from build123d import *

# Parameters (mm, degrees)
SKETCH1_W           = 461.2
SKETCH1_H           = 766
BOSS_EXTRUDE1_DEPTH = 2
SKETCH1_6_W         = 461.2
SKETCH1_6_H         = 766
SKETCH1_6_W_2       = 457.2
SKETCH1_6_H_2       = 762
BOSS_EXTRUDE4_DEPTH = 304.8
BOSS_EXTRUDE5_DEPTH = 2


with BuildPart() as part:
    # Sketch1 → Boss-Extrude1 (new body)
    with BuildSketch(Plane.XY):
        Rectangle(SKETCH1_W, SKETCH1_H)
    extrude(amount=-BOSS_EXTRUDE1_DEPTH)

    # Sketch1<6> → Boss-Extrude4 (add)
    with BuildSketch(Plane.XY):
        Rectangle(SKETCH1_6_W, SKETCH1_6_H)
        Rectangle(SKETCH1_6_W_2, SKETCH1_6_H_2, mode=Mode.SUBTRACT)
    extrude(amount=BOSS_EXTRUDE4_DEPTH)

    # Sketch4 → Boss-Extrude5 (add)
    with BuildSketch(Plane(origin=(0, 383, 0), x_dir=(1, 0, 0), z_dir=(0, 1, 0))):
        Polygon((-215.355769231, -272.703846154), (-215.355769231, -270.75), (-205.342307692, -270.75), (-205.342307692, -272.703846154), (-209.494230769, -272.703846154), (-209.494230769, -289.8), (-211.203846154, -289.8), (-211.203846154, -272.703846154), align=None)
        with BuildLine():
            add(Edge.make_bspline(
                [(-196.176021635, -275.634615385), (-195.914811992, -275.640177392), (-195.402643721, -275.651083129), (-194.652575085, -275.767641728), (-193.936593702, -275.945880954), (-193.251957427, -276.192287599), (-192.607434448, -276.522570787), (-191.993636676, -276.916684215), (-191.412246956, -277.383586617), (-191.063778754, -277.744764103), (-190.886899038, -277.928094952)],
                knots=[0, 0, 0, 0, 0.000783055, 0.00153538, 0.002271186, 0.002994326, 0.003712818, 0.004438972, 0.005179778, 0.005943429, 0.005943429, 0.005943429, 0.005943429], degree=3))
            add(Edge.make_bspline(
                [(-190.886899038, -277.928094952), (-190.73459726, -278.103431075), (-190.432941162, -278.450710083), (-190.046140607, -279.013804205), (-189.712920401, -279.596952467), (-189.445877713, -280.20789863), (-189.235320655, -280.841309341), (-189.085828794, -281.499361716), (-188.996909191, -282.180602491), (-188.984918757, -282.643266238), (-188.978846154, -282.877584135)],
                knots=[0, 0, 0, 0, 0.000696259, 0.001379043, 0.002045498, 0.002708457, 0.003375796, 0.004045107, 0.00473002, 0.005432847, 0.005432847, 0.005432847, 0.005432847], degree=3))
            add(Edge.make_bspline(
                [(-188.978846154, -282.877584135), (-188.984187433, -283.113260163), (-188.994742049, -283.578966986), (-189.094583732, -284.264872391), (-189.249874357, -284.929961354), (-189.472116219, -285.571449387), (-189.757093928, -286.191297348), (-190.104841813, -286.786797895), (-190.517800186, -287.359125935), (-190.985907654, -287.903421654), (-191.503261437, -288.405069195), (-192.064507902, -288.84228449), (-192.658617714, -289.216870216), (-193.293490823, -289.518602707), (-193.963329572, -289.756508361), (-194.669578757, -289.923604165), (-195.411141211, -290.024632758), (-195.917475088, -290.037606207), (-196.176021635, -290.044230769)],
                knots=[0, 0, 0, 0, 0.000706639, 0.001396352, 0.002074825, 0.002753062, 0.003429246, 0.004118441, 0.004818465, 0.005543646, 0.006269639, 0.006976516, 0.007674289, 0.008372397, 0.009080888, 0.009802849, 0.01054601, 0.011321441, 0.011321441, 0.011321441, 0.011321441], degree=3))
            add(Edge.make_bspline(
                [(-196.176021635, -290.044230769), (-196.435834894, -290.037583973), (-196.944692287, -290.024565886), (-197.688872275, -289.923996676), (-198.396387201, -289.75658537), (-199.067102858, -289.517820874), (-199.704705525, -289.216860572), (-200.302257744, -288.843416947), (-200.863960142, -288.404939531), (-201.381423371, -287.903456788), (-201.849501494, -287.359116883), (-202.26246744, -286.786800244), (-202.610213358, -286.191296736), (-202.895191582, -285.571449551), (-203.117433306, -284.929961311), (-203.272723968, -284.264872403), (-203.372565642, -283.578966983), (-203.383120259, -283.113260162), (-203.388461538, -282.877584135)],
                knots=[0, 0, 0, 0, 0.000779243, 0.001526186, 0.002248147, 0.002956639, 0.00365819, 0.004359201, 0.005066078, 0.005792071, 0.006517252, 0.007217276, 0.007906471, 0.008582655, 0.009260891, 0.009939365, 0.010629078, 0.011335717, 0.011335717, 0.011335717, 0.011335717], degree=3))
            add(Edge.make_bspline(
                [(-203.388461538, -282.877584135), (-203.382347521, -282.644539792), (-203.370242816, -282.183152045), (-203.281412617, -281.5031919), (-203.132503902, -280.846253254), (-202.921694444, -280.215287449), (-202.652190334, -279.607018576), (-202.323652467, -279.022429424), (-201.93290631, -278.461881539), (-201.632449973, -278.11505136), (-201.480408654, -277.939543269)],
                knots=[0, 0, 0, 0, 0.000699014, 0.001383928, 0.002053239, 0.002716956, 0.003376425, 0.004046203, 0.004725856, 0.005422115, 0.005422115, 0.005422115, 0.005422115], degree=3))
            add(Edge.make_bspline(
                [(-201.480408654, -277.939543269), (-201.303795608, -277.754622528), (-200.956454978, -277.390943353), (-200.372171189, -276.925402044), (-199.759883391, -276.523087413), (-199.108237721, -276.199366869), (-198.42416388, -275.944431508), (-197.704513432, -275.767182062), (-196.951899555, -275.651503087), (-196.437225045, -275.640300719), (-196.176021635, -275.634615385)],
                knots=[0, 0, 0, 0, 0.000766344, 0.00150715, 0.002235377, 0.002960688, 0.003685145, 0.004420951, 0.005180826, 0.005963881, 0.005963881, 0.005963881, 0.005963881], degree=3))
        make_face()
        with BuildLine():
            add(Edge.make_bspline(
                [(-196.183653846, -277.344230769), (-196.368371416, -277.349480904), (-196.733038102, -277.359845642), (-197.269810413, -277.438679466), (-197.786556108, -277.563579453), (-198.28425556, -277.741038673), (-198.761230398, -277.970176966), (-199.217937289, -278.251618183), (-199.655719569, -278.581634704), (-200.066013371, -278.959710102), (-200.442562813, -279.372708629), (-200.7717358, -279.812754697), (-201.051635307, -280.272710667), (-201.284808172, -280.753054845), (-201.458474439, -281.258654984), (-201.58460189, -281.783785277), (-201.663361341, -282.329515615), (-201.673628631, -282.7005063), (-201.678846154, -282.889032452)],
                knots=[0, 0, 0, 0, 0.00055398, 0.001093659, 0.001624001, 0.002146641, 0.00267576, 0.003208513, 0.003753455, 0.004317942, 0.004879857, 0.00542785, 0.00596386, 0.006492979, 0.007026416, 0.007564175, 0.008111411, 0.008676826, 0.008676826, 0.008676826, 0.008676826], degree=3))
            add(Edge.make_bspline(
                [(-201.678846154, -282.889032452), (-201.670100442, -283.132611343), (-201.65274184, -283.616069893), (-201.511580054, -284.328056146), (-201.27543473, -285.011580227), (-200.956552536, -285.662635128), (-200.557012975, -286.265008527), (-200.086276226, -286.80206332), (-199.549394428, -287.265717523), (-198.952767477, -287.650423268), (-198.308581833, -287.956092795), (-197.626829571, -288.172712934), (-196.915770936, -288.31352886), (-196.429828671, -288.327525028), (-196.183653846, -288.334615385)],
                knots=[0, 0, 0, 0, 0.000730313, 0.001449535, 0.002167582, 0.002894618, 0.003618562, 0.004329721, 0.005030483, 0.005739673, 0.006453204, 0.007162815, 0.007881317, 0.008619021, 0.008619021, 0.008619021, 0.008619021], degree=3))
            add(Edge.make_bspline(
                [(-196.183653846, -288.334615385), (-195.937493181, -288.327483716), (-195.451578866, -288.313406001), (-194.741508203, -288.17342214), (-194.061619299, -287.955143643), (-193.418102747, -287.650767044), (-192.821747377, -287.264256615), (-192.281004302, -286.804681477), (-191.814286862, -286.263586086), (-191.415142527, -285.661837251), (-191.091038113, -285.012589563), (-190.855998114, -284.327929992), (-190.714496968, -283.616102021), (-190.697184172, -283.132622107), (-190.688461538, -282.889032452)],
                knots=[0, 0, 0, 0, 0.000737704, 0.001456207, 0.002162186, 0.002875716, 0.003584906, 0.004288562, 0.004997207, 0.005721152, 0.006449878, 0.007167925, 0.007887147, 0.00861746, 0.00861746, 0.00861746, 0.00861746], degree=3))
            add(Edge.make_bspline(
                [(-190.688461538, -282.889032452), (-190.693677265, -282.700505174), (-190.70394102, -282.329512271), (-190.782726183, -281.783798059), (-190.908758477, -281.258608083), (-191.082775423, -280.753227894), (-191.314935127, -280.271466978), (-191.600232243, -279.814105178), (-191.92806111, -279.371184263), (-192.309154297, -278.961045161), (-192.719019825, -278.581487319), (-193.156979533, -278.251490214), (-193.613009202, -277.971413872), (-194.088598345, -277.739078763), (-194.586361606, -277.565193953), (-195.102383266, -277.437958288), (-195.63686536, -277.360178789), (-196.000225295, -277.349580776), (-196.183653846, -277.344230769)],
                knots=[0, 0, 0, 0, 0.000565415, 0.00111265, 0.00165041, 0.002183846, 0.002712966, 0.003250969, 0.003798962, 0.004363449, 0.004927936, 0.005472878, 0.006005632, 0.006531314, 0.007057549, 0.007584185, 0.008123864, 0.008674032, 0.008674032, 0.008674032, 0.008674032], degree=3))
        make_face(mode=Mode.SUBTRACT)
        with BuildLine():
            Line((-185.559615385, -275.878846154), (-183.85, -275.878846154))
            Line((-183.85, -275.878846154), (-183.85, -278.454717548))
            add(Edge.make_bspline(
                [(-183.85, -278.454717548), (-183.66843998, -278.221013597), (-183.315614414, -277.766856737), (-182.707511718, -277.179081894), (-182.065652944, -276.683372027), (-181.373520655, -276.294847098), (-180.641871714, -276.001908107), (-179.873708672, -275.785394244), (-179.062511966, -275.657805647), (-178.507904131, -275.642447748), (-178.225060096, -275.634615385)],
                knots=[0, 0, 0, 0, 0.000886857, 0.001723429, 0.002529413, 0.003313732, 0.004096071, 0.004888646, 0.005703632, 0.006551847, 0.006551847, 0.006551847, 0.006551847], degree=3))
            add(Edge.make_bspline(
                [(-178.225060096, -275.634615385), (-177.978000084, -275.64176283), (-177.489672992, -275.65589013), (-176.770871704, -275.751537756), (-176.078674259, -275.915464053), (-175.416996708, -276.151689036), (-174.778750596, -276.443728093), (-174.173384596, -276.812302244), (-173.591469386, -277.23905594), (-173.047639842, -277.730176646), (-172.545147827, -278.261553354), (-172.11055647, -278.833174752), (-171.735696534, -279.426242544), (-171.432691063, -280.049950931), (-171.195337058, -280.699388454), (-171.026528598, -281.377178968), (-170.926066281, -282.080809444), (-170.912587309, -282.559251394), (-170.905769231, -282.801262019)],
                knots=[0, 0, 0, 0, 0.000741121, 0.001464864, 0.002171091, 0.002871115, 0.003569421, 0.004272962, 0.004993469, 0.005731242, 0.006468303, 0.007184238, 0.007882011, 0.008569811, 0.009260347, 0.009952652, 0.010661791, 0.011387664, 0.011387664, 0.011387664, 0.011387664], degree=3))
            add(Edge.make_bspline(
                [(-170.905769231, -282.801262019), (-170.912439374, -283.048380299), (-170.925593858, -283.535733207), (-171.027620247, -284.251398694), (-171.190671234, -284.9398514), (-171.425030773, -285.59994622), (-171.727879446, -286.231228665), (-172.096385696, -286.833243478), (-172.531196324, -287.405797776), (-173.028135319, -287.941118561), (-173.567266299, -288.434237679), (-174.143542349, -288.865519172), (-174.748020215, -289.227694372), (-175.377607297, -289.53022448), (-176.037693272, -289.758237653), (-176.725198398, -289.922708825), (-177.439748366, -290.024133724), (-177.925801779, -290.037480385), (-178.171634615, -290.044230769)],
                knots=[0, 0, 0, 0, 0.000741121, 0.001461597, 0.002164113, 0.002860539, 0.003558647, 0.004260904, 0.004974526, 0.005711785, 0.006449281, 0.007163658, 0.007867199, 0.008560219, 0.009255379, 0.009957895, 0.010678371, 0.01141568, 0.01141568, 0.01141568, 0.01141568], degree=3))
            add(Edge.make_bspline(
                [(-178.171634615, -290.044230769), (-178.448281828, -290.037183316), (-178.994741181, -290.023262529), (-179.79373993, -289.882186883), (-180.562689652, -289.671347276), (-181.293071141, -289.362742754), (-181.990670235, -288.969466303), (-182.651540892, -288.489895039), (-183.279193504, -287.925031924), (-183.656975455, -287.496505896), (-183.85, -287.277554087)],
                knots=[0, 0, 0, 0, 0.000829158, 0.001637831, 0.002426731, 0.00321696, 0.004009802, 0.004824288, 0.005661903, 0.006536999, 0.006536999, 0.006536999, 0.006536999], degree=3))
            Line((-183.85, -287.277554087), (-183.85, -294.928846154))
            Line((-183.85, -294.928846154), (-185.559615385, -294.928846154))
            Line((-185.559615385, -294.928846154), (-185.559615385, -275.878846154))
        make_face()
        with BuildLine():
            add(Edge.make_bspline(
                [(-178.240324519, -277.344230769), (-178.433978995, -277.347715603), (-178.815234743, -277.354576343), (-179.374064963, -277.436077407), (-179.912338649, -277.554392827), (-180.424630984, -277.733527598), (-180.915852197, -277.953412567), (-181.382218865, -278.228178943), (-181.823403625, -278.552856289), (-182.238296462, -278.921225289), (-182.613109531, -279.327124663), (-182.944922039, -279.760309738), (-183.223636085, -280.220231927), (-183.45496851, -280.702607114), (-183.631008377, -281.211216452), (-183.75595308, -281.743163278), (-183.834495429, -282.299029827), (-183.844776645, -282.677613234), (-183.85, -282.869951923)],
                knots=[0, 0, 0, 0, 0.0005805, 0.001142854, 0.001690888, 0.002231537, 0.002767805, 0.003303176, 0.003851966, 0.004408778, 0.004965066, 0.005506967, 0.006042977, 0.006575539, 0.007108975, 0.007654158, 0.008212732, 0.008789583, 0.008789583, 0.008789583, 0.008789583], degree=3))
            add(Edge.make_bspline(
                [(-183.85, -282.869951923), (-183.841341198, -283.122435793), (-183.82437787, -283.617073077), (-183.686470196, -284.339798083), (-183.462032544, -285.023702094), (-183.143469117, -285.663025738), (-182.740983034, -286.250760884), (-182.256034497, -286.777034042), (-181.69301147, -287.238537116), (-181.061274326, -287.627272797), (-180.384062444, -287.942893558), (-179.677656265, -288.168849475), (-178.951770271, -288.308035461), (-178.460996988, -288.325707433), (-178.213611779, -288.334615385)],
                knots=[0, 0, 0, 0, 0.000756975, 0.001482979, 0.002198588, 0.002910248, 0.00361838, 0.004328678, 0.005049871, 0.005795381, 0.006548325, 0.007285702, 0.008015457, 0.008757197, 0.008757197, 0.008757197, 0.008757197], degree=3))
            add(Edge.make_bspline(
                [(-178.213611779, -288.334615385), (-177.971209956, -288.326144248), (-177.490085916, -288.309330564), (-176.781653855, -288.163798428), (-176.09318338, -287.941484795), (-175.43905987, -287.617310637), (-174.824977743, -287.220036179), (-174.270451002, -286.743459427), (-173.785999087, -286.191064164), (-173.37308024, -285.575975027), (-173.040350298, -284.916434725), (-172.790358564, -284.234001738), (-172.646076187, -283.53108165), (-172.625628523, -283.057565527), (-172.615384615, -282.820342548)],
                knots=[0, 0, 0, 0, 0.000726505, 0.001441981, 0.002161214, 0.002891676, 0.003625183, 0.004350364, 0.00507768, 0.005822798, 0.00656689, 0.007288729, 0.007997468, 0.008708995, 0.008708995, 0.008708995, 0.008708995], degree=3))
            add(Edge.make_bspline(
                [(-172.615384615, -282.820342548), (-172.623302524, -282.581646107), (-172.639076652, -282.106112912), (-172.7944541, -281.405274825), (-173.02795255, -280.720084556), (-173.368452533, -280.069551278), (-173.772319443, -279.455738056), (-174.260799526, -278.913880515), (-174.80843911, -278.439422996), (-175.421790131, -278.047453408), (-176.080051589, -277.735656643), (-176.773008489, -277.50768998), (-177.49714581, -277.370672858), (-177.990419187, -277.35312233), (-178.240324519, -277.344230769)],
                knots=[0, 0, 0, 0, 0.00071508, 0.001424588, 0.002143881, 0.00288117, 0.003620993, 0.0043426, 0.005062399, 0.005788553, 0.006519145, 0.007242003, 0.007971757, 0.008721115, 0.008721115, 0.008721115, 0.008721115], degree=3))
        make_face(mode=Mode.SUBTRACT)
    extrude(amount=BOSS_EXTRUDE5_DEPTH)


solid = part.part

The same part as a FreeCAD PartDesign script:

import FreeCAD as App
import Part
import Sketcher

V = App.Vector
Q = App.Units.Quantity


def add_polygon(sketch, points):
    """Adds a closed chain of lines whose ends are joined by coincident constraints."""
    first, n = sketch.GeometryCount, len(points)
    for a, b in zip(points, points[1:] + points[:1]):
        sketch.addGeometry(Part.LineSegment(App.Vector(*a, 0), App.Vector(*b, 0)), False)
    for i in range(n):
        sketch.addConstraint(Sketcher.Constraint("Coincident", first + i, 2, first + (i + 1) % n, 1))

doc = App.newDocument("Part")
params = doc.addObject("Spreadsheet::Sheet", "Params")
for row, (alias, value) in enumerate([
    ("pad1_length", "2 mm"),
    ("sketch2_width", "18 in"),
    ("sketch2_height", "30 in"),
    ("pad2_length", "12 in"),
    ("sketch3_height", "0.75 in"),
    ("pad3_length", "2 mm"),
], start=1):
    params.set(f"A{row}", alias)
    params.set(f"B{row}", "=" + value)
    params.setAlias(f"B{row}", alias)

body = doc.addObject("PartDesign::Body", "Body")

# Sketch on XY plane
sketch1 = body.newObject("Sketcher::SketchObject", "Sketch")
sketch1.AttachmentSupport = (doc.getObject("XY_Plane"), [""])
sketch1.MapMode = "FlatFace"
add_polygon(sketch1, [(-231, 383), (-231, -383), (231, -383), (231, 383)])  # lines 0-3
sketch1.addConstraint(Sketcher.Constraint("Vertical", 0))
sketch1.addConstraint(Sketcher.Constraint("Horizontal", 1))
sketch1.addConstraint(Sketcher.Constraint("Vertical", 2))
sketch1.addConstraint(Sketcher.Constraint("Horizontal", 3))
sketch1.addConstraint(Sketcher.Constraint("Symmetric", 0, 2, 2, 2, -1, 1))
sketch1.addConstraint(Sketcher.Constraint("DistanceX", 1, 1, 1, 2, Q("461.2 mm")))
sketch1.addConstraint(Sketcher.Constraint("DistanceY", 0, 2, 0, 1, Q("766 mm")))
pad1 = body.newObject("PartDesign::Pad", "Pad")
pad1.Profile = sketch1
pad1.setExpression("Length", "Params.pad1_length")
pad1.Reversed = True

# Sketch on XY plane
sketch2 = body.newObject("Sketcher::SketchObject", "Sketch001")
sketch2.AttachmentSupport = (doc.getObject("XY_Plane"), [""])
sketch2.MapMode = "FlatFace"
add_polygon(sketch2, [(-231, 383), (-231, -383), (231, -383), (231, 383)])  # lines 0-3
add_polygon(sketch2, [(229, -381), (-229, -381), (-229, 381), (229, 381)])  # lines 4-7
sketch2.addConstraint(Sketcher.Constraint("Vertical", 0))
sketch2.addConstraint(Sketcher.Constraint("Horizontal", 1))
sketch2.addConstraint(Sketcher.Constraint("Vertical", 2))
sketch2.addConstraint(Sketcher.Constraint("Horizontal", 3))
sketch2.addConstraint(Sketcher.Constraint("Horizontal", 4))
sketch2.addConstraint(Sketcher.Constraint("Vertical", 5))
sketch2.addConstraint(Sketcher.Constraint("Horizontal", 6))
sketch2.addConstraint(Sketcher.Constraint("Vertical", 7))
sketch2.addConstraint(Sketcher.Constraint("Symmetric", 0, 2, 2, 2, -1, 1))
sketch2.addConstraint(Sketcher.Constraint("Symmetric", 4, 2, 6, 2, -1, 1))
sketch2.addConstraint(Sketcher.Constraint("DistanceX", 4, 2, 4, 1, Q("18 in")))
sketch2.addConstraint(Sketcher.Constraint("DistanceY", 5, 1, 5, 2, Q("30 in")))
sketch2.addConstraint(Sketcher.Constraint("DistanceX", 1, 1, 1, 2, Q("461.2 mm")))
sketch2.addConstraint(Sketcher.Constraint("DistanceY", 0, 2, 0, 1, Q("766 mm")))
sketch2.setExpression("Constraints[18]", "Params.sketch2_width")
sketch2.setExpression("Constraints[19]", "Params.sketch2_height")
pad2 = body.newObject("PartDesign::Pad", "Pad001")
pad2.Profile = sketch2
pad2.setExpression("Length", "Params.pad2_length")

# Sketch on XZ plane
sketch3 = body.newObject("Sketcher::SketchObject", "Sketch002")
sketch3.AttachmentSupport = (doc.getObject("XZ_Plane"), [""])
sketch3.MapMode = "FlatFace"
sketch3.AttachmentOffset = App.Placement(V(0, 0, -383), App.Rotation())
add_polygon(sketch3, [(-215.355769, 270.75), (-215.355769, 272.703846), (-211.203846, 272.703846), (-211.203846, 289.8), (-209.494231, 289.8), (-209.494231, 272.703846), (-205.342308, 272.703846), (-205.342308, 270.75)])  # lines 0-7
sketch3.addGeometry(Part.BSplineCurve([V(-196.176022, 275.634615, 0), V(-195.914812, 275.640177, 0), V(-195.402644, 275.651083, 0), V(-194.652575, 275.767642, 0), V(-193.936594, 275.945881, 0), V(-193.251957, 276.192288, 0), V(-192.607434, 276.522571, 0), V(-191.993637, 276.916684, 0), V(-191.412247, 277.383587, 0), V(-191.063779, 277.744764, 0), V(-190.886899, 277.928095, 0)], [4, 1, 1, 1, 1, 1, 1, 1, 4], [0, 0.000783055, 0.00153538, 0.002271186, 0.002994326, 0.003712818, 0.004438972, 0.005179778, 0.005943429], False, 3, [1, 1, 1, 1, 1, 1, 1, 1, 1, 1, 1], False), False)  # 8
sketch3.addGeometry(Part.BSplineCurve([V(-201.480409, 277.939543, 0), V(-201.303796, 277.754623, 0), V(-200.956455, 277.390943, 0), V(-200.372171, 276.925402, 0), V(-199.759883, 276.523087, 0), V(-199.108238, 276.199367, 0), V(-198.424164, 275.944432, 0), V(-197.704513, 275.767182, 0), V(-196.9519, 275.651503, 0), V(-196.437225, 275.640301, 0), V(-196.176022, 275.634615, 0)], [4, 1, 1, 1, 1, 1, 1, 1, 4], [0, 0.000766344, 0.00150715, 0.002235377, 0.002960688, 0.003685145, 0.004420951, 0.005180826, 0.005963881], False, 3, [1, 1, 1, 1, 1, 1, 1, 1, 1, 1, 1], False), False)  # 9
sketch3.addGeometry(Part.BSplineCurve([V(-203.388462, 282.877584, 0), V(-203.382348, 282.64454, 0), V(-203.370243, 282.183152, 0), V(-203.281413, 281.503192, 0), V(-203.132504, 280.846253, 0), V(-202.921694, 280.215287, 0), V(-202.65219, 279.607019, 0), V(-202.323652, 279.022429, 0), V(-201.932906, 278.461882, 0), V(-201.63245, 278.115051, 0), V(-201.480409, 277.939543, 0)], [4, 1, 1, 1, 1, 1, 1, 1, 4], [0, 0.000699014, 0.001383928, 0.002053239, 0.002716956, 0.003376425, 0.004046203, 0.004725856, 0.005422115], False, 3, [1, 1, 1, 1, 1, 1, 1, 1, 1, 1, 1], False), False)  # 10
sketch3.addGeometry(Part.BSplineCurve([V(-196.176022, 290.044231, 0), V(-196.435835, 290.037584, 0), V(-196.944692, 290.024566, 0), V(-197.688872, 289.923997, 0), V(-198.396387, 289.756585, 0), V(-199.067103, 289.517821, 0), V(-199.704706, 289.216861, 0), V(-200.302258, 288.843417, 0), V(-200.86396, 288.40494, 0), V(-201.381423, 287.903457, 0), V(-201.849501, 287.359117, 0), V(-202.262467, 286.7868, 0), V(-202.610213, 286.191297, 0), V(-202.895192, 285.57145, 0), V(-203.117433, 284.929961, 0), V(-203.272724, 284.264872, 0), V(-203.372566, 283.578967, 0), V(-203.38312, 283.11326, 0), V(-203.388462, 282.877584, 0)], [4, 1, 1, 1, 1, 1, 1, 1, 1, 1, 1, 1, 1, 1, 1, 1, 4], [0, 0.000779243, 0.001526186, 0.002248147, 0.002956639, 0.00365819, 0.004359201, 0.005066078, 0.005792071, 0.006517252, 0.007217276, 0.007906471, 0.008582655, 0.009260891, 0.009939365, 0.010629078, 0.011335717], False, 3, [1, 1, 1, 1, 1, 1, 1, 1, 1, 1, 1, 1, 1, 1, 1, 1, 1, 1, 1], False), False)  # 11
sketch3.addGeometry(Part.BSplineCurve([V(-188.978846, 282.877584, 0), V(-188.984187, 283.11326, 0), V(-188.994742, 283.578967, 0), V(-189.094584, 284.264872, 0), V(-189.249874, 284.929961, 0), V(-189.472116, 285.571449, 0), V(-189.757094, 286.191297, 0), V(-190.104842, 286.786798, 0), V(-190.5178, 287.359126, 0), V(-190.985908, 287.903422, 0), V(-191.503261, 288.405069, 0), V(-192.064508, 288.842284, 0), V(-192.658618, 289.21687, 0), V(-193.293491, 289.518603, 0), V(-193.96333, 289.756508, 0), V(-194.669579, 289.923604, 0), V(-195.411141, 290.024633, 0), V(-195.917475, 290.037606, 0), V(-196.176022, 290.044231, 0)], [4, 1, 1, 1, 1, 1, 1, 1, 1, 1, 1, 1, 1, 1, 1, 1, 4], [0, 0.000706639, 0.001396352, 0.002074825, 0.002753062, 0.003429246, 0.004118441, 0.004818465, 0.005543646, 0.006269639, 0.006976516, 0.007674289, 0.008372397, 0.009080888, 0.009802849, 0.01054601, 0.011321441], False, 3, [1, 1, 1, 1, 1, 1, 1, 1, 1, 1, 1, 1, 1, 1, 1, 1, 1, 1, 1], False), False)  # 12
sketch3.addGeometry(Part.BSplineCurve([V(-190.886899, 277.928095, 0), V(-190.734597, 278.103431, 0), V(-190.432941, 278.45071, 0), V(-190.046141, 279.013804, 0), V(-189.71292, 279.596952, 0), V(-189.445878, 280.207899, 0), V(-189.235321, 280.841309, 0), V(-189.085829, 281.499362, 0), V(-188.996909, 282.180602, 0), V(-188.984919, 282.643266, 0), V(-188.978846, 282.877584, 0)], [4, 1, 1, 1, 1, 1, 1, 1, 4], [0, 0.000696259, 0.001379043, 0.002045498, 0.002708457, 0.003375796, 0.004045107, 0.00473002, 0.005432847], False, 3, [1, 1, 1, 1, 1, 1, 1, 1, 1, 1, 1], False), False)  # 13
sketch3.addGeometry(Part.BSplineCurve([V(-190.688462, 282.889032, 0), V(-190.693677, 282.700505, 0), V(-190.703941, 282.329512, 0), V(-190.782726, 281.783798, 0), V(-190.908758, 281.258608, 0), V(-191.082775, 280.753228, 0), V(-191.314935, 280.271467, 0), V(-191.600232, 279.814105, 0), V(-191.928061, 279.371184, 0), V(-192.309154, 278.961045, 0), V(-192.71902, 278.581487, 0), V(-193.15698, 278.25149, 0), V(-193.613009, 277.971414, 0), V(-194.088598, 277.739079, 0), V(-194.586362, 277.565194, 0), V(-195.102383, 277.437958, 0), V(-195.636865, 277.360179, 0), V(-196.000225, 277.349581, 0), V(-196.183654, 277.344231, 0)], [4, 1, 1, 1, 1, 1, 1, 1, 1, 1, 1, 1, 1, 1, 1, 1, 4], [0, 0.000565415, 0.00111265, 0.00165041, 0.002183846, 0.002712966, 0.003250969, 0.003798962, 0.004363449, 0.004927936, 0.005472878, 0.006005632, 0.006531314, 0.007057549, 0.007584185, 0.008123864, 0.008674032], False, 3, [1, 1, 1, 1, 1, 1, 1, 1, 1, 1, 1, 1, 1, 1, 1, 1, 1, 1, 1], False), False)  # 14
sketch3.addGeometry(Part.BSplineCurve([V(-196.183654, 288.334615, 0), V(-195.937493, 288.327484, 0), V(-195.451579, 288.313406, 0), V(-194.741508, 288.173422, 0), V(-194.061619, 287.955144, 0), V(-193.418103, 287.650767, 0), V(-192.821747, 287.264257, 0), V(-192.281004, 286.804681, 0), V(-191.814287, 286.263586, 0), V(-191.415143, 285.661837, 0), V(-191.091038, 285.01259, 0), V(-190.855998, 284.32793, 0), V(-190.714497, 283.616102, 0), V(-190.697184, 283.132622, 0), V(-190.688462, 282.889032, 0)], [4, 1, 1, 1, 1, 1, 1, 1, 1, 1, 1, 1, 4], [0, 0.000737704, 0.001456207, 0.002162186, 0.002875716, 0.003584906, 0.004288562, 0.004997207, 0.005721152, 0.006449878, 0.007167925, 0.007887147, 0.00861746], False, 3, [1, 1, 1, 1, 1, 1, 1, 1, 1, 1, 1, 1, 1, 1, 1], False), False)  # 15
sketch3.addGeometry(Part.BSplineCurve([V(-201.678846, 282.889032, 0), V(-201.6701, 283.132611, 0), V(-201.652742, 283.61607, 0), V(-201.51158, 284.328056, 0), V(-201.275435, 285.01158, 0), V(-200.956553, 285.662635, 0), V(-200.557013, 286.265009, 0), V(-200.086276, 286.802063, 0), V(-199.549394, 287.265718, 0), V(-198.952767, 287.650423, 0), V(-198.308582, 287.956093, 0), V(-197.62683, 288.172713, 0), V(-196.915771, 288.313529, 0), V(-196.429829, 288.327525, 0), V(-196.183654, 288.334615, 0)], [4, 1, 1, 1, 1, 1, 1, 1, 1, 1, 1, 1, 4], [0, 0.000730313, 0.001449535, 0.002167582, 0.002894618, 0.003618562, 0.004329721, 0.005030483, 0.005739673, 0.006453204, 0.007162815, 0.007881317, 0.008619021], False, 3, [1, 1, 1, 1, 1, 1, 1, 1, 1, 1, 1, 1, 1, 1, 1], False), False)  # 16
sketch3.addGeometry(Part.BSplineCurve([V(-196.183654, 277.344231, 0), V(-196.368371, 277.349481, 0), V(-196.733038, 277.359846, 0), V(-197.26981, 277.438679, 0), V(-197.786556, 277.563579, 0), V(-198.284256, 277.741039, 0), V(-198.76123, 277.970177, 0), V(-199.217937, 278.251618, 0), V(-199.65572, 278.581635, 0), V(-200.066013, 278.95971, 0), V(-200.442563, 279.372709, 0), V(-200.771736, 279.812755, 0), V(-201.051635, 280.272711, 0), V(-201.284808, 280.753055, 0), V(-201.458474, 281.258655, 0), V(-201.584602, 281.783785, 0), V(-201.663361, 282.329516, 0), V(-201.673629, 282.700506, 0), V(-201.678846, 282.889032, 0)], [4, 1, 1, 1, 1, 1, 1, 1, 1, 1, 1, 1, 1, 1, 1, 1, 4], [0, 0.00055398, 0.001093659, 0.001624001, 0.002146641, 0.00267576, 0.003208513, 0.003753455, 0.004317942, 0.004879857, 0.00542785, 0.00596386, 0.006492979, 0.007026416, 0.007564175, 0.008111411, 0.008676826], False, 3, [1, 1, 1, 1, 1, 1, 1, 1, 1, 1, 1, 1, 1, 1, 1, 1, 1, 1, 1], False), False)  # 17
sketch3.addGeometry(Part.LineSegment(V(-183.85, 275.878846, 0), V(-185.559615, 275.878846, 0)), False)  # 18
sketch3.addGeometry(Part.LineSegment(V(-185.559615, 275.878846, 0), V(-185.559615, 294.928846, 0)), False)  # 19
sketch3.addGeometry(Part.LineSegment(V(-185.559615, 294.928846, 0), V(-183.85, 294.928846, 0)), False)  # 20
sketch3.addGeometry(Part.LineSegment(V(-183.85, 294.928846, 0), V(-183.85, 287.277554, 0)), False)  # 21
sketch3.addGeometry(Part.BSplineCurve([V(-178.171635, 290.044231, 0), V(-178.448282, 290.037183, 0), V(-178.994741, 290.023263, 0), V(-179.79374, 289.882187, 0), V(-180.56269, 289.671347, 0), V(-181.293071, 289.362743, 0), V(-181.99067, 288.969466, 0), V(-182.651541, 288.489895, 0), V(-183.279194, 287.925032, 0), V(-183.656975, 287.496506, 0), V(-183.85, 287.277554, 0)], [4, 1, 1, 1, 1, 1, 1, 1, 4], [0, 0.000829158, 0.001637831, 0.002426731, 0.00321696, 0.004009802, 0.004824288, 0.005661903, 0.006536999], False, 3, [1, 1, 1, 1, 1, 1, 1, 1, 1, 1, 1], False), False)  # 22
sketch3.addGeometry(Part.BSplineCurve([V(-170.905769, 282.801262, 0), V(-170.912439, 283.04838, 0), V(-170.925594, 283.535733, 0), V(-171.02762, 284.251399, 0), V(-171.190671, 284.939851, 0), V(-171.425031, 285.599946, 0), V(-171.727879, 286.231229, 0), V(-172.096386, 286.833243, 0), V(-172.531196, 287.405798, 0), V(-173.028135, 287.941119, 0), V(-173.567266, 288.434238, 0), V(-174.143542, 288.865519, 0), V(-174.74802, 289.227694, 0), V(-175.377607, 289.530224, 0), V(-176.037693, 289.758238, 0), V(-176.725198, 289.922709, 0), V(-177.439748, 290.024134, 0), V(-177.925802, 290.03748, 0), V(-178.171635, 290.044231, 0)], [4, 1, 1, 1, 1, 1, 1, 1, 1, 1, 1, 1, 1, 1, 1, 1, 4], [0, 0.000741121, 0.001461597, 0.002164113, 0.002860539, 0.003558647, 0.004260904, 0.004974526, 0.005711785, 0.006449281, 0.007163658, 0.007867199, 0.008560219, 0.009255379, 0.009957895, 0.010678371, 0.01141568], False, 3, [1, 1, 1, 1, 1, 1, 1, 1, 1, 1, 1, 1, 1, 1, 1, 1, 1, 1, 1], False), False)  # 23
sketch3.addGeometry(Part.BSplineCurve([V(-178.22506, 275.634615, 0), V(-177.978, 275.641763, 0), V(-177.489673, 275.65589, 0), V(-176.770872, 275.751538, 0), V(-176.078674, 275.915464, 0), V(-175.416997, 276.151689, 0), V(-174.778751, 276.443728, 0), V(-174.173385, 276.812302, 0), V(-173.591469, 277.239056, 0), V(-173.04764, 277.730177, 0), V(-172.545148, 278.261553, 0), V(-172.110556, 278.833175, 0), V(-171.735697, 279.426243, 0), V(-171.432691, 280.049951, 0), V(-171.195337, 280.699388, 0), V(-171.026529, 281.377179, 0), V(-170.926066, 282.080809, 0), V(-170.912587, 282.559251, 0), V(-170.905769, 282.801262, 0)], [4, 1, 1, 1, 1, 1, 1, 1, 1, 1, 1, 1, 1, 1, 1, 1, 4], [0, 0.000741121, 0.001464864, 0.002171091, 0.002871115, 0.003569421, 0.004272962, 0.004993469, 0.005731242, 0.006468303, 0.007184238, 0.007882011, 0.008569811, 0.009260347, 0.009952652, 0.010661791, 0.011387664], False, 3, [1, 1, 1, 1, 1, 1, 1, 1, 1, 1, 1, 1, 1, 1, 1, 1, 1, 1, 1], False), False)  # 24
sketch3.addGeometry(Part.BSplineCurve([V(-183.85, 278.454718, 0), V(-183.66844, 278.221014, 0), V(-183.315614, 277.766857, 0), V(-182.707512, 277.179082, 0), V(-182.065653, 276.683372, 0), V(-181.373521, 276.294847, 0), V(-180.641872, 276.001908, 0), V(-179.873709, 275.785394, 0), V(-179.062512, 275.657806, 0), V(-178.507904, 275.642448, 0), V(-178.22506, 275.634615, 0)], [4, 1, 1, 1, 1, 1, 1, 1, 4], [0, 0.000886857, 0.001723429, 0.002529413, 0.003313732, 0.004096071, 0.004888646, 0.005703632, 0.006551847], False, 3, [1, 1, 1, 1, 1, 1, 1, 1, 1, 1, 1], False), False)  # 25
sketch3.addGeometry(Part.LineSegment(V(-183.85, 278.454718, 0), V(-183.85, 275.878846, 0)), False)  # 26
sketch3.addGeometry(Part.BSplineCurve([V(-172.615385, 282.820343, 0), V(-172.623303, 282.581646, 0), V(-172.639077, 282.106113, 0), V(-172.794454, 281.405275, 0), V(-173.027953, 280.720085, 0), V(-173.368453, 280.069551, 0), V(-173.772319, 279.455738, 0), V(-174.2608, 278.913881, 0), V(-174.808439, 278.439423, 0), V(-175.42179, 278.047453, 0), V(-176.080052, 277.735657, 0), V(-176.773008, 277.50769, 0), V(-177.497146, 277.370673, 0), V(-177.990419, 277.353122, 0), V(-178.240325, 277.344231, 0)], [4, 1, 1, 1, 1, 1, 1, 1, 1, 1, 1, 1, 4], [0, 0.00071508, 0.001424588, 0.002143881, 0.00288117, 0.003620993, 0.0043426, 0.005062399, 0.005788553, 0.006519145, 0.007242003, 0.007971757, 0.008721115], False, 3, [1, 1, 1, 1, 1, 1, 1, 1, 1, 1, 1, 1, 1, 1, 1], False), False)  # 27
sketch3.addGeometry(Part.BSplineCurve([V(-178.213612, 288.334615, 0), V(-177.97121, 288.326144, 0), V(-177.490086, 288.309331, 0), V(-176.781654, 288.163798, 0), V(-176.093183, 287.941485, 0), V(-175.43906, 287.617311, 0), V(-174.824978, 287.220036, 0), V(-174.270451, 286.743459, 0), V(-173.785999, 286.191064, 0), V(-173.37308, 285.575975, 0), V(-173.04035, 284.916435, 0), V(-172.790359, 284.234002, 0), V(-172.646076, 283.531082, 0), V(-172.625629, 283.057566, 0), V(-172.615385, 282.820343, 0)], [4, 1, 1, 1, 1, 1, 1, 1, 1, 1, 1, 1, 4], [0, 0.000726505, 0.001441981, 0.002161214, 0.002891676, 0.003625183, 0.004350364, 0.00507768, 0.005822798, 0.00656689, 0.007288729, 0.007997468, 0.008708995], False, 3, [1, 1, 1, 1, 1, 1, 1, 1, 1, 1, 1, 1, 1, 1, 1], False), False)  # 28
sketch3.addGeometry(Part.BSplineCurve([V(-183.85, 282.869952, 0), V(-183.841341, 283.122436, 0), V(-183.824378, 283.617073, 0), V(-183.68647, 284.339798, 0), V(-183.462033, 285.023702, 0), V(-183.143469, 285.663026, 0), V(-182.740983, 286.250761, 0), V(-182.256034, 286.777034, 0), V(-181.693011, 287.238537, 0), V(-181.061274, 287.627273, 0), V(-180.384062, 287.942894, 0), V(-179.677656, 288.168849, 0), V(-178.95177, 288.308035, 0), V(-178.460997, 288.325707, 0), V(-178.213612, 288.334615, 0)], [4, 1, 1, 1, 1, 1, 1, 1, 1, 1, 1, 1, 4], [0, 0.000756975, 0.001482979, 0.002198588, 0.002910248, 0.00361838, 0.004328678, 0.005049871, 0.005795381, 0.006548325, 0.007285702, 0.008015457, 0.008757197], False, 3, [1, 1, 1, 1, 1, 1, 1, 1, 1, 1, 1, 1, 1, 1, 1], False), False)  # 29
sketch3.addGeometry(Part.BSplineCurve([V(-178.240325, 277.344231, 0), V(-178.433979, 277.347716, 0), V(-178.815235, 277.354576, 0), V(-179.374065, 277.436077, 0), V(-179.912339, 277.554393, 0), V(-180.424631, 277.733528, 0), V(-180.915852, 277.953413, 0), V(-181.382219, 278.228179, 0), V(-181.823404, 278.552856, 0), V(-182.238296, 278.921225, 0), V(-182.61311, 279.327125, 0), V(-182.944922, 279.76031, 0), V(-183.223636, 280.220232, 0), V(-183.454969, 280.702607, 0), V(-183.631008, 281.211216, 0), V(-183.755953, 281.743163, 0), V(-183.834495, 282.29903, 0), V(-183.844777, 282.677613, 0), V(-183.85, 282.869952, 0)], [4, 1, 1, 1, 1, 1, 1, 1, 1, 1, 1, 1, 1, 1, 1, 1, 4], [0, 0.0005805, 0.001142854, 0.001690888, 0.002231537, 0.002767805, 0.003303176, 0.003851966, 0.004408778, 0.004965066, 0.005506967, 0.006042977, 0.006575539, 0.007108975, 0.007654158, 0.008212732, 0.008789583], False, 3, [1, 1, 1, 1, 1, 1, 1, 1, 1, 1, 1, 1, 1, 1, 1, 1, 1, 1, 1], False), False)  # 30
sketch3.addConstraint(Sketcher.Constraint("Block", 8))
sketch3.addConstraint(Sketcher.Constraint("Block", 9))
sketch3.addConstraint(Sketcher.Constraint("Block", 10))
sketch3.addConstraint(Sketcher.Constraint("Block", 11))
sketch3.addConstraint(Sketcher.Constraint("Block", 12))
sketch3.addConstraint(Sketcher.Constraint("Block", 13))
sketch3.addConstraint(Sketcher.Constraint("Block", 14))
sketch3.addConstraint(Sketcher.Constraint("Block", 15))
sketch3.addConstraint(Sketcher.Constraint("Block", 16))
sketch3.addConstraint(Sketcher.Constraint("Block", 17))
sketch3.addConstraint(Sketcher.Constraint("Block", 22))
sketch3.addConstraint(Sketcher.Constraint("Block", 23))
sketch3.addConstraint(Sketcher.Constraint("Block", 24))
sketch3.addConstraint(Sketcher.Constraint("Block", 25))
sketch3.addConstraint(Sketcher.Constraint("Block", 27))
sketch3.addConstraint(Sketcher.Constraint("Block", 28))
sketch3.addConstraint(Sketcher.Constraint("Block", 29))
sketch3.addConstraint(Sketcher.Constraint("Block", 30))
sketch3.addConstraint(Sketcher.Constraint("Coincident", 18, 2, 19, 1))
sketch3.addConstraint(Sketcher.Constraint("Coincident", 19, 2, 20, 1))
sketch3.addConstraint(Sketcher.Constraint("Coincident", 20, 2, 21, 1))
sketch3.addConstraint(Sketcher.Constraint("Coincident", 21, 2, 22, 2))
sketch3.addConstraint(Sketcher.Constraint("Coincident", 25, 1, 26, 1))
sketch3.addConstraint(Sketcher.Constraint("Coincident", 26, 2, 18, 1))
sketch3.addConstraint(Sketcher.Constraint("Vertical", 0))
sketch3.addConstraint(Sketcher.Constraint("Horizontal", 1))
sketch3.addConstraint(Sketcher.Constraint("Vertical", 2))
sketch3.addConstraint(Sketcher.Constraint("Horizontal", 3))
sketch3.addConstraint(Sketcher.Constraint("Vertical", 4))
sketch3.addConstraint(Sketcher.Constraint("Horizontal", 5))
sketch3.addConstraint(Sketcher.Constraint("Vertical", 6))
sketch3.addConstraint(Sketcher.Constraint("Horizontal", 7))
sketch3.addConstraint(Sketcher.Constraint("Horizontal", 18))
sketch3.addConstraint(Sketcher.Constraint("Vertical", 19))
sketch3.addConstraint(Sketcher.Constraint("Horizontal", 20))
sketch3.addConstraint(Sketcher.Constraint("Vertical", 21))
sketch3.addConstraint(Sketcher.Constraint("Vertical", 26))
sketch3.addConstraint(Sketcher.Constraint("Horizontal", 1, 2, 4, 2))
sketch3.addConstraint(Sketcher.Constraint("Equal", 1, 5))
sketch3.addConstraint(Sketcher.Constraint("Equal", 3, 18))
sketch3.addConstraint(Sketcher.Constraint("DistanceY", 19, 1, 19, 2, Q("0.75 in")))
sketch3.addConstraint(Sketcher.Constraint("DistanceY", 6, 2, 3, 2, Q("0.75 in")))
sketch3.addConstraint(Sketcher.Constraint("DistanceY", 5, 2, 18, 2, Q("0.125 in")))
sketch3.addConstraint(Sketcher.Constraint("DistanceX", 7, 2, 7, 1, Q("10.013462 mm")))
sketch3.addConstraint(Sketcher.Constraint("DistanceY", 26, 2, 26, 1, Q("2.575871 mm")))
sketch3.addConstraint(Sketcher.Constraint("DistanceY", -1, 1, 2, 2, Q("289.8 mm")))
sketch3.addConstraint(Sketcher.Constraint("DistanceX", 1, 1, 1, 2, Q("4.151923 mm")))
sketch3.addConstraint(Sketcher.Constraint("DistanceX", 0, 2, -1, 1, Q("215.355769 mm")))
sketch3.setExpression("Constraints[48]", "Params.sketch3_height")
pad3 = body.newObject("PartDesign::Pad", "Pad002")
pad3.Profile = sketch3
pad3.setExpression("Length", "Params.pad3_length")
pad3.Reversed = True

doc.recompute()
